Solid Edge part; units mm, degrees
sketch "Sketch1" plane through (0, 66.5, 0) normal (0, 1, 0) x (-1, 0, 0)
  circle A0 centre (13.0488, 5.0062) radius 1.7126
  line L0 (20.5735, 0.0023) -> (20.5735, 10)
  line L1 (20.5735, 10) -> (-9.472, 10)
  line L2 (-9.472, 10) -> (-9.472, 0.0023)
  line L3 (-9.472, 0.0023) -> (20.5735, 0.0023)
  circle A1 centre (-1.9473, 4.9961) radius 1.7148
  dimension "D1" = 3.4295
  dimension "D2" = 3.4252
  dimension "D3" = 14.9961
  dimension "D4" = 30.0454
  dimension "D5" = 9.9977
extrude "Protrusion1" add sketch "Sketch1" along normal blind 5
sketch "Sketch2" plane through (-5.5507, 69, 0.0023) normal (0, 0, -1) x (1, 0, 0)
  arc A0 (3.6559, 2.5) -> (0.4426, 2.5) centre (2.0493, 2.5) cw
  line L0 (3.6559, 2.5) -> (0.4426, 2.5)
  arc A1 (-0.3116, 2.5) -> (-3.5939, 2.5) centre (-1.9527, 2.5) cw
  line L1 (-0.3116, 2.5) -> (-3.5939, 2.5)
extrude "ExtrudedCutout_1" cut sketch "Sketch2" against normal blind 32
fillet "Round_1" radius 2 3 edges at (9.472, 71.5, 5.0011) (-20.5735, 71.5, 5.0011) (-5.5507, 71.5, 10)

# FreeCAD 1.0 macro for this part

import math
import FreeCAD as App
import Part
import Sketcher
from FreeCAD import Vector


def edges_at(feature, points):
    """Names of the edges that pass closest to the given points."""
    edges = feature.Shape.Edges
    near = lambda p: min(range(len(edges)), key=lambda i: edges[i].distToShape(Part.Vertex(*p))[0])
    return sorted({f"Edge{near(p) + 1}" for p in points})


def add_polygon(sketch, points):
    """Adds a closed chain of lines whose ends are joined by coincident constraints."""
    first, n = sketch.GeometryCount, len(points)
    for a, b in zip(points, points[1:] + points[:1]):
        sketch.addGeometry(Part.LineSegment(App.Vector(*a, 0), App.Vector(*b, 0)), False)
    for i in range(n):
        sketch.addConstraint(Sketcher.Constraint("Coincident", first + i, 2, first + (i + 1) % n, 1))

doc = App.newDocument("Part")
params = doc.addObject("Spreadsheet::Sheet", "Params")
for row, (alias, value) in enumerate([
    ("pad1_length", "5 mm"),
    ("pocket1_length", "32 mm"),
    ("fillet_radius", "2 mm"),
], start=1):
    params.set(f"A{row}", alias)
    params.set(f"B{row}", "=" + value)
    params.setAlias(f"B{row}", alias)

body = doc.addObject("PartDesign::Body", "Body")

# Sketch on XZ plane
sketch1 = body.newObject("Sketcher::SketchObject", "Sketch")
sketch1.AttachmentSupport = (doc.getObject("XZ_Plane"), [""])
sketch1.MapMode = "FlatFace"
sketch1.AttachmentOffset = App.Placement(Vector(0, 0, -66.5), App.Rotation())
add_polygon(sketch1, [(9.472, 0.0023), (-20.5735, 0.0023), (-20.5735, 10), (9.472, 10)])  # lines 0-3
sketch1.addGeometry(Part.Circle(Vector(1.9473, 4.9961, 0), Vector(0, 0, 1), 1.7148), False)  # 4
sketch1.addGeometry(Part.Circle(Vector(-13.0488, 5.0062, 0), Vector(0, 0, 1), 1.7126), False)  # 5
sketch1.addConstraint([
    Sketcher.Constraint("Horizontal", 0),
    Sketcher.Constraint("Vertical", 1),
    Sketcher.Constraint("Horizontal", 2),
    Sketcher.Constraint("Vertical", 3),
    Sketcher.Constraint("DistanceY", -1, 1, 1, 2, 10.0),
    Sketcher.Constraint("Diameter", 4, 3.4296),
    Sketcher.Constraint("Diameter", 5, 3.4252),
    Sketcher.Constraint("DistanceY", 4, 3, 5, 3, 0.01),
    Sketcher.Constraint("DistanceX", 0, 2, 0, 1, 30.0455),
    Sketcher.Constraint("DistanceY", 1, 1, 1, 2, 9.9977),
    Sketcher.Constraint("DistanceY", -1, 1, 4, 3, 4.996),
    Sketcher.Constraint("DistanceX", -1, 1, 2, 2, 9.472),
    Sketcher.Constraint("DistanceX", 5, 3, 4, 3, 14.996),
    Sketcher.Constraint("DistanceX", -1, 1, 4, 3, 1.9473),
])
pad1 = body.newObject("PartDesign::Pad", "Pad")
pad1.Profile = sketch1
pad1.setExpression("Length", "Params.pad1_length")
pad1.Reversed = True

# Sketch on XY plane
sketch2 = body.newObject("Sketcher::SketchObject", "Sketch001")
sketch2.AttachmentSupport = (doc.getObject("XY_Plane"), [""])
sketch2.MapMode = "FlatFace"
sketch2.AttachmentOffset = App.Placement(Vector(0, 0, 0.0023), App.Rotation())
sketch2.addGeometry([
    Part.ArcOfCircle(Part.Circle(Vector(-3.5014, 66.5, 0), Vector(0, 0, 1), 1.6066), math.radians(0), math.radians(180)),
    Part.LineSegment(Vector(-1.8948, 66.5, 0), Vector(-5.1081, 66.5, 0)),
    Part.ArcOfCircle(Part.Circle(Vector(-7.5034, 66.5, 0), Vector(0, 0, 1), 1.6411), math.radians(0), math.radians(180)),
    Part.LineSegment(Vector(-5.8623, 66.5, 0), Vector(-9.1446, 66.5, 0)),
], False)
sketch2.addConstraint([
    Sketcher.Constraint("Coincident", 0, 1, 1, 1),
    Sketcher.Constraint("Coincident", 1, 2, 0, 2),
    Sketcher.Constraint("Coincident", 2, 1, 3, 1),
    Sketcher.Constraint("Coincident", 3, 2, 2, 2),
    Sketcher.Constraint("Horizontal", 1),
    Sketcher.Constraint("Horizontal", 3),
    Sketcher.Constraint("Horizontal", 0, 3, 2, 3),
    Sketcher.Constraint("Horizontal", 2, 3, 0, 1),
    Sketcher.Constraint("Horizontal", 1, 2, 2, 1),
    Sketcher.Constraint("Radius", 2, 1.641),
    Sketcher.Constraint("DistanceY", -1, 1, 0, 3, 66.5),
    Sketcher.Constraint("Radius", 0, 1.6066),
    Sketcher.Constraint("DistanceX", 1, 2, -1, 1, 5.108),
    Sketcher.Constraint("DistanceX", 2, 3, 0, 3, 4.002),
])
pocket1 = body.newObject("PartDesign::Pocket", "Pocket")
pocket1.Profile = sketch2
pocket1.setExpression("Length", "Params.pocket1_length")
pocket1.Reversed = True
doc.recompute()

fillet = body.newObject("PartDesign::Fillet", "Fillet")
fillet.Base = (pocket1, edges_at(pocket1, [(9.472, 71.5, 5.001), (-20.573, 71.5, 5.001), (-5.551, 71.5, 10)]))
fillet.setExpression("Radius", "Params.fillet_radius")

doc.recompute()
